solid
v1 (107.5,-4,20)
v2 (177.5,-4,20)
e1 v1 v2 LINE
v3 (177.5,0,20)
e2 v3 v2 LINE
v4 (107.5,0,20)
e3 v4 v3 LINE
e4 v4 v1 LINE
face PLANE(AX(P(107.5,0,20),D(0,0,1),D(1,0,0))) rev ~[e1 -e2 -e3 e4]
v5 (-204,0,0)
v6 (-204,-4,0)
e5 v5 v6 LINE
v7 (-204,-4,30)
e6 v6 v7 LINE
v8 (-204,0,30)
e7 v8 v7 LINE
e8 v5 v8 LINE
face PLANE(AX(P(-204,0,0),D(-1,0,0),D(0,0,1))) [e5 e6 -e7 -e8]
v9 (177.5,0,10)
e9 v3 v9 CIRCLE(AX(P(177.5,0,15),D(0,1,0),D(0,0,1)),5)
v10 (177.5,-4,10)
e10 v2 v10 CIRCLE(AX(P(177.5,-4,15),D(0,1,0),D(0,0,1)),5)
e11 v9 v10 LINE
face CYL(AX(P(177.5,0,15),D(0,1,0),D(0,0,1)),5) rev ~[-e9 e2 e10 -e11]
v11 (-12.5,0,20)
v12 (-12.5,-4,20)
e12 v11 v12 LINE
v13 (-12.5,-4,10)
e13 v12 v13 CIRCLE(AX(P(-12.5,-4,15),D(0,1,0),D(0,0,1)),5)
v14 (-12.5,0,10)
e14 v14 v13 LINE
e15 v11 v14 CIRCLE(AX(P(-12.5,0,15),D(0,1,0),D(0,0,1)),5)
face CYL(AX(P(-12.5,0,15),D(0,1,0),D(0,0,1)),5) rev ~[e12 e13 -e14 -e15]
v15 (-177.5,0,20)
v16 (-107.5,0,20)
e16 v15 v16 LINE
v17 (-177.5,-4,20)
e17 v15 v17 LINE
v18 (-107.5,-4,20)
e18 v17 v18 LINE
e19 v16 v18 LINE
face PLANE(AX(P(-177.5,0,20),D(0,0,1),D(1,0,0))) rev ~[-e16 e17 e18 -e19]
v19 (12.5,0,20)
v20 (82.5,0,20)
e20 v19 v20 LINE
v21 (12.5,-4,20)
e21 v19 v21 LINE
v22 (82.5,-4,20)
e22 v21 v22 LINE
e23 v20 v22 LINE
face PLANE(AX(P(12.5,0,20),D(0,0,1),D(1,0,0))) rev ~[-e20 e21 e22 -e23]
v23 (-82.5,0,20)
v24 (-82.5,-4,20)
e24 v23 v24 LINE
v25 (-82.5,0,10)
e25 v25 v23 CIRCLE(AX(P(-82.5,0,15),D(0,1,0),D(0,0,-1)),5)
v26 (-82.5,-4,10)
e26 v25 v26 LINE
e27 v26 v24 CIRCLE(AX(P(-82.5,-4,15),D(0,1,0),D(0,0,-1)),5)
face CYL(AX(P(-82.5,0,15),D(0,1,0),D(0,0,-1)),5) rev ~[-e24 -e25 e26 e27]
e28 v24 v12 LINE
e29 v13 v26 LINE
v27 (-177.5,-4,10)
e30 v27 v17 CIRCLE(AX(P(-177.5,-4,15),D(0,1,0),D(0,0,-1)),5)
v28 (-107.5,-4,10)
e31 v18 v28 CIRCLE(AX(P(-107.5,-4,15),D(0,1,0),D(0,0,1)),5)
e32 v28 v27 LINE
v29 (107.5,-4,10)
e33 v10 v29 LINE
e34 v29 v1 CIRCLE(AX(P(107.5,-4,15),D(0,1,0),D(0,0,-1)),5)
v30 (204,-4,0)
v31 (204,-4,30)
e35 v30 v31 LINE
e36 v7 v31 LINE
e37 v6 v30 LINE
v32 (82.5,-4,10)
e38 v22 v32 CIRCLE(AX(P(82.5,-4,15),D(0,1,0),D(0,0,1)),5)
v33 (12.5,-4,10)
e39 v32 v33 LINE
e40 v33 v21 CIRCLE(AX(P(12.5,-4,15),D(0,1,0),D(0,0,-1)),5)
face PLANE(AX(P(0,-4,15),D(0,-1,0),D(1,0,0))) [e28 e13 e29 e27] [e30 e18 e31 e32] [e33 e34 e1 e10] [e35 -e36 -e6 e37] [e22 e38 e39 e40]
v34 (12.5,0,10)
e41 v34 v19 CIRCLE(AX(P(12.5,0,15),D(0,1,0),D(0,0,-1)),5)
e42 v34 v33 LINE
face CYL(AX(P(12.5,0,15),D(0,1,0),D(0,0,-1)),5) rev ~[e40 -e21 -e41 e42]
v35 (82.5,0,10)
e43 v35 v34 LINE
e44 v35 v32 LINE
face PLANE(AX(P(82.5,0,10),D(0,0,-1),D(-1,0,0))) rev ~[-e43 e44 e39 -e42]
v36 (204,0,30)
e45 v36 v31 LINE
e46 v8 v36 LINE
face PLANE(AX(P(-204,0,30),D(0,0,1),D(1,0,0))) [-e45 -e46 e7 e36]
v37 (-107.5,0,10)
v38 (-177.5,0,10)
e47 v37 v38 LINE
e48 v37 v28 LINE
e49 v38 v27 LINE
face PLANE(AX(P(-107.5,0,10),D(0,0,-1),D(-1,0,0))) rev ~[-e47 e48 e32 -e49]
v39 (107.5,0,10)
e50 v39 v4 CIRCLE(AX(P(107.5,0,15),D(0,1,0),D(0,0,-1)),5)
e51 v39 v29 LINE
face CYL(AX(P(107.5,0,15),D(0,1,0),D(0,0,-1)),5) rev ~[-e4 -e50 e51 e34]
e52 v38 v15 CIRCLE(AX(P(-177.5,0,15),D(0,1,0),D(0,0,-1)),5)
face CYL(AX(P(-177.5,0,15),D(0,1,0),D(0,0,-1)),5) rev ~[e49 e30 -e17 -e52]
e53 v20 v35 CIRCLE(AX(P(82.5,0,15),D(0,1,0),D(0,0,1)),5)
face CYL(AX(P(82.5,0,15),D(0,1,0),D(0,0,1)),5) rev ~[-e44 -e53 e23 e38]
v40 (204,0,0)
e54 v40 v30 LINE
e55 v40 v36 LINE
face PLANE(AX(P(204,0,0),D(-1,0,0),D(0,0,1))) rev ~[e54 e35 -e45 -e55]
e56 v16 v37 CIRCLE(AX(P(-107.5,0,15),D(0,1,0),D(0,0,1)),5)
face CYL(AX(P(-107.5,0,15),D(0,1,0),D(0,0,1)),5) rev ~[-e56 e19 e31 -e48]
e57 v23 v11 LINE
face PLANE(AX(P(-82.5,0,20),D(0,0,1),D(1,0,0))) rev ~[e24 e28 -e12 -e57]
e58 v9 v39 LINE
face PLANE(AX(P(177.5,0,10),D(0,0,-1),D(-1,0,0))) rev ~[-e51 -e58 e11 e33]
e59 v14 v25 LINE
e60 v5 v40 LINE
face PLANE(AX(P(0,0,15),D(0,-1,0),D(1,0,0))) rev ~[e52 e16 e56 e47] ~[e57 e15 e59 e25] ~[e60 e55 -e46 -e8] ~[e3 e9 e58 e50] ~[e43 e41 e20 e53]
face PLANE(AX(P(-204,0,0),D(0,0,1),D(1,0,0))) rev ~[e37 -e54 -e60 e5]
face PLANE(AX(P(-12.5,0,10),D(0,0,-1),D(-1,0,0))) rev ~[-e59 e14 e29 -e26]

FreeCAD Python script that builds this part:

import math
import FreeCAD as App
import Part
import Sketcher

V = App.Vector
Q = App.Units.Quantity

doc = App.newDocument("Part")
body = doc.addObject("PartDesign::Body", "Body")

# Sketch on XZ plane
sketch1 = doc.addObject("Sketcher::SketchObject", "Sketch")
body.addObject(sketch1)
sketch1.AttachmentSupport = (doc.XZ_Plane, [""])
sketch1.MapMode = "FlatFace"
sketch1.addGeometry([
    Part.LineSegment(V(-204, 30, 0), V(-204, 0, 0)),  # 0
    Part.LineSegment(V(-204, 0, 0), V(204, 0, 0)),  # 1
    Part.LineSegment(V(204, 0, 0), V(204, 30, 0)),  # 2
    Part.LineSegment(V(204, 30, 0), V(-204, 30, 0)),  # 3
    Part.LineSegment(V(-107.5, 10, 0), V(-177.5, 10, 0)),  # 4
    Part.ArcOfCircle(Part.Circle(V(-177.5, 15, 0), V(0, 0, 1), 5), math.radians(90), math.radians(270)),  # 5
    Part.LineSegment(V(-177.5, 20, 0), V(-107.5, 20, 0)),  # 6
    Part.ArcOfCircle(Part.Circle(V(-107.5, 15, 0), V(0, 0, 1), 5), math.radians(-90), math.radians(90)),  # 7
    Part.LineSegment(V(-12.5, 10, 0), V(-82.5, 10, 0)),  # 8
    Part.ArcOfCircle(Part.Circle(V(-82.5, 15, 0), V(0, 0, 1), 5), math.radians(90), math.radians(270)),  # 9
    Part.LineSegment(V(-82.5, 20, 0), V(-12.5, 20, 0)),  # 10
    Part.ArcOfCircle(Part.Circle(V(-12.5, 15, 0), V(0, 0, 1), 5), math.radians(-90), math.radians(90)),  # 11
    Part.LineSegment(V(82.5, 10, 0), V(12.5, 10, 0)),  # 12
    Part.ArcOfCircle(Part.Circle(V(12.5, 15, 0), V(0, 0, 1), 5), math.radians(90), math.radians(270)),  # 13
    Part.LineSegment(V(12.5, 20, 0), V(82.5, 20, 0)),  # 14
    Part.ArcOfCircle(Part.Circle(V(82.5, 15, 0), V(0, 0, 1), 5), math.radians(-90), math.radians(90)),  # 15
    Part.LineSegment(V(177.5, 10, 0), V(107.5, 10, 0)),  # 16
    Part.ArcOfCircle(Part.Circle(V(107.5, 15, 0), V(0, 0, 1), 5), math.radians(90), math.radians(270)),  # 17
    Part.LineSegment(V(107.5, 20, 0), V(177.5, 20, 0)),  # 18
    Part.ArcOfCircle(Part.Circle(V(177.5, 15, 0), V(0, 0, 1), 5), math.radians(-90), math.radians(90)),  # 19
], False)
sketch1.addConstraint([
    Sketcher.Constraint("Coincident", 0, 2, 1, 1),
    Sketcher.Constraint("Coincident", 1, 2, 2, 1),
    Sketcher.Constraint("Coincident", 2, 2, 3, 1),
    Sketcher.Constraint("Coincident", 3, 2, 0, 1),
    Sketcher.Constraint("Tangent", 4, 2, 5, 2),
    Sketcher.Constraint("Tangent", 5, 1, 6, 1),
    Sketcher.Constraint("Tangent", 6, 2, 7, 2),
    Sketcher.Constraint("Tangent", 7, 1, 4, 1),
    Sketcher.Constraint("Tangent", 8, 2, 9, 2),
    Sketcher.Constraint("Tangent", 9, 1, 10, 1),
    Sketcher.Constraint("Tangent", 10, 2, 11, 2),
    Sketcher.Constraint("Tangent", 11, 1, 8, 1),
    Sketcher.Constraint("Tangent", 12, 2, 13, 2),
    Sketcher.Constraint("Tangent", 13, 1, 14, 1),
    Sketcher.Constraint("Tangent", 14, 2, 15, 2),
    Sketcher.Constraint("Tangent", 15, 1, 12, 1),
    Sketcher.Constraint("Tangent", 16, 2, 17, 2),
    Sketcher.Constraint("Tangent", 17, 1, 18, 1),
    Sketcher.Constraint("Tangent", 18, 2, 19, 2),
    Sketcher.Constraint("Tangent", 19, 1, 16, 1),
    Sketcher.Constraint("Vertical", 0),
    Sketcher.Constraint("Horizontal", 1),
    Sketcher.Constraint("Vertical", 2),
    Sketcher.Constraint("Horizontal", 3),
    Sketcher.Constraint("Horizontal", 4),
    Sketcher.Constraint("Horizontal", 6),
    Sketcher.Constraint("Horizontal", 8),
    Sketcher.Constraint("Horizontal", 10),
    Sketcher.Constraint("Horizontal", 12),
    Sketcher.Constraint("Horizontal", 14),
    Sketcher.Constraint("Horizontal", 16),
    Sketcher.Constraint("Horizontal", 18),
    Sketcher.Constraint("Equal", 7, 9),
    Sketcher.Constraint("Equal", 11, 13),
    Sketcher.Constraint("Equal", 15, 17),
    Sketcher.Constraint("Symmetric", 0, 2, 1, 2, -1, 1),
    Sketcher.Constraint("Symmetric", 11, 3, 13, 3, -2),
    Sketcher.Constraint("Symmetric", 7, 3, 17, 3, -2),
    Sketcher.Constraint("Horizontal", 7, 3, 9, 3),
    Sketcher.Constraint("Equal", 6, 8),
    Sketcher.Constraint("Equal", 10, 12),
    Sketcher.Constraint("Equal", 14, 16),
    Sketcher.Constraint("Radius", 5, Q("5 mm")),
    Sketcher.Constraint("DistanceX", 1, 1, 1, 2, Q("408 mm")),
    Sketcher.Constraint("DistanceX", 4, 2, 4, 1, Q("70 mm")),
    Sketcher.Constraint("DistanceY", 0, 2, 0, 1, Q("30 mm")),
    Sketcher.Constraint("DistanceY", -1, 1, 5, 3, Q("15 mm")),
    Sketcher.Constraint("DistanceX", 7, 3, 9, 3, Q("25 mm")),
    Sketcher.Constraint("DistanceX", 11, 3, 13, 3, Q("25 mm")),
])
pad1 = doc.addObject("PartDesign::Pad", "Pad")
body.addObject(pad1)
pad1.Profile = sketch1
pad1.Length = 4

doc.recompute()
